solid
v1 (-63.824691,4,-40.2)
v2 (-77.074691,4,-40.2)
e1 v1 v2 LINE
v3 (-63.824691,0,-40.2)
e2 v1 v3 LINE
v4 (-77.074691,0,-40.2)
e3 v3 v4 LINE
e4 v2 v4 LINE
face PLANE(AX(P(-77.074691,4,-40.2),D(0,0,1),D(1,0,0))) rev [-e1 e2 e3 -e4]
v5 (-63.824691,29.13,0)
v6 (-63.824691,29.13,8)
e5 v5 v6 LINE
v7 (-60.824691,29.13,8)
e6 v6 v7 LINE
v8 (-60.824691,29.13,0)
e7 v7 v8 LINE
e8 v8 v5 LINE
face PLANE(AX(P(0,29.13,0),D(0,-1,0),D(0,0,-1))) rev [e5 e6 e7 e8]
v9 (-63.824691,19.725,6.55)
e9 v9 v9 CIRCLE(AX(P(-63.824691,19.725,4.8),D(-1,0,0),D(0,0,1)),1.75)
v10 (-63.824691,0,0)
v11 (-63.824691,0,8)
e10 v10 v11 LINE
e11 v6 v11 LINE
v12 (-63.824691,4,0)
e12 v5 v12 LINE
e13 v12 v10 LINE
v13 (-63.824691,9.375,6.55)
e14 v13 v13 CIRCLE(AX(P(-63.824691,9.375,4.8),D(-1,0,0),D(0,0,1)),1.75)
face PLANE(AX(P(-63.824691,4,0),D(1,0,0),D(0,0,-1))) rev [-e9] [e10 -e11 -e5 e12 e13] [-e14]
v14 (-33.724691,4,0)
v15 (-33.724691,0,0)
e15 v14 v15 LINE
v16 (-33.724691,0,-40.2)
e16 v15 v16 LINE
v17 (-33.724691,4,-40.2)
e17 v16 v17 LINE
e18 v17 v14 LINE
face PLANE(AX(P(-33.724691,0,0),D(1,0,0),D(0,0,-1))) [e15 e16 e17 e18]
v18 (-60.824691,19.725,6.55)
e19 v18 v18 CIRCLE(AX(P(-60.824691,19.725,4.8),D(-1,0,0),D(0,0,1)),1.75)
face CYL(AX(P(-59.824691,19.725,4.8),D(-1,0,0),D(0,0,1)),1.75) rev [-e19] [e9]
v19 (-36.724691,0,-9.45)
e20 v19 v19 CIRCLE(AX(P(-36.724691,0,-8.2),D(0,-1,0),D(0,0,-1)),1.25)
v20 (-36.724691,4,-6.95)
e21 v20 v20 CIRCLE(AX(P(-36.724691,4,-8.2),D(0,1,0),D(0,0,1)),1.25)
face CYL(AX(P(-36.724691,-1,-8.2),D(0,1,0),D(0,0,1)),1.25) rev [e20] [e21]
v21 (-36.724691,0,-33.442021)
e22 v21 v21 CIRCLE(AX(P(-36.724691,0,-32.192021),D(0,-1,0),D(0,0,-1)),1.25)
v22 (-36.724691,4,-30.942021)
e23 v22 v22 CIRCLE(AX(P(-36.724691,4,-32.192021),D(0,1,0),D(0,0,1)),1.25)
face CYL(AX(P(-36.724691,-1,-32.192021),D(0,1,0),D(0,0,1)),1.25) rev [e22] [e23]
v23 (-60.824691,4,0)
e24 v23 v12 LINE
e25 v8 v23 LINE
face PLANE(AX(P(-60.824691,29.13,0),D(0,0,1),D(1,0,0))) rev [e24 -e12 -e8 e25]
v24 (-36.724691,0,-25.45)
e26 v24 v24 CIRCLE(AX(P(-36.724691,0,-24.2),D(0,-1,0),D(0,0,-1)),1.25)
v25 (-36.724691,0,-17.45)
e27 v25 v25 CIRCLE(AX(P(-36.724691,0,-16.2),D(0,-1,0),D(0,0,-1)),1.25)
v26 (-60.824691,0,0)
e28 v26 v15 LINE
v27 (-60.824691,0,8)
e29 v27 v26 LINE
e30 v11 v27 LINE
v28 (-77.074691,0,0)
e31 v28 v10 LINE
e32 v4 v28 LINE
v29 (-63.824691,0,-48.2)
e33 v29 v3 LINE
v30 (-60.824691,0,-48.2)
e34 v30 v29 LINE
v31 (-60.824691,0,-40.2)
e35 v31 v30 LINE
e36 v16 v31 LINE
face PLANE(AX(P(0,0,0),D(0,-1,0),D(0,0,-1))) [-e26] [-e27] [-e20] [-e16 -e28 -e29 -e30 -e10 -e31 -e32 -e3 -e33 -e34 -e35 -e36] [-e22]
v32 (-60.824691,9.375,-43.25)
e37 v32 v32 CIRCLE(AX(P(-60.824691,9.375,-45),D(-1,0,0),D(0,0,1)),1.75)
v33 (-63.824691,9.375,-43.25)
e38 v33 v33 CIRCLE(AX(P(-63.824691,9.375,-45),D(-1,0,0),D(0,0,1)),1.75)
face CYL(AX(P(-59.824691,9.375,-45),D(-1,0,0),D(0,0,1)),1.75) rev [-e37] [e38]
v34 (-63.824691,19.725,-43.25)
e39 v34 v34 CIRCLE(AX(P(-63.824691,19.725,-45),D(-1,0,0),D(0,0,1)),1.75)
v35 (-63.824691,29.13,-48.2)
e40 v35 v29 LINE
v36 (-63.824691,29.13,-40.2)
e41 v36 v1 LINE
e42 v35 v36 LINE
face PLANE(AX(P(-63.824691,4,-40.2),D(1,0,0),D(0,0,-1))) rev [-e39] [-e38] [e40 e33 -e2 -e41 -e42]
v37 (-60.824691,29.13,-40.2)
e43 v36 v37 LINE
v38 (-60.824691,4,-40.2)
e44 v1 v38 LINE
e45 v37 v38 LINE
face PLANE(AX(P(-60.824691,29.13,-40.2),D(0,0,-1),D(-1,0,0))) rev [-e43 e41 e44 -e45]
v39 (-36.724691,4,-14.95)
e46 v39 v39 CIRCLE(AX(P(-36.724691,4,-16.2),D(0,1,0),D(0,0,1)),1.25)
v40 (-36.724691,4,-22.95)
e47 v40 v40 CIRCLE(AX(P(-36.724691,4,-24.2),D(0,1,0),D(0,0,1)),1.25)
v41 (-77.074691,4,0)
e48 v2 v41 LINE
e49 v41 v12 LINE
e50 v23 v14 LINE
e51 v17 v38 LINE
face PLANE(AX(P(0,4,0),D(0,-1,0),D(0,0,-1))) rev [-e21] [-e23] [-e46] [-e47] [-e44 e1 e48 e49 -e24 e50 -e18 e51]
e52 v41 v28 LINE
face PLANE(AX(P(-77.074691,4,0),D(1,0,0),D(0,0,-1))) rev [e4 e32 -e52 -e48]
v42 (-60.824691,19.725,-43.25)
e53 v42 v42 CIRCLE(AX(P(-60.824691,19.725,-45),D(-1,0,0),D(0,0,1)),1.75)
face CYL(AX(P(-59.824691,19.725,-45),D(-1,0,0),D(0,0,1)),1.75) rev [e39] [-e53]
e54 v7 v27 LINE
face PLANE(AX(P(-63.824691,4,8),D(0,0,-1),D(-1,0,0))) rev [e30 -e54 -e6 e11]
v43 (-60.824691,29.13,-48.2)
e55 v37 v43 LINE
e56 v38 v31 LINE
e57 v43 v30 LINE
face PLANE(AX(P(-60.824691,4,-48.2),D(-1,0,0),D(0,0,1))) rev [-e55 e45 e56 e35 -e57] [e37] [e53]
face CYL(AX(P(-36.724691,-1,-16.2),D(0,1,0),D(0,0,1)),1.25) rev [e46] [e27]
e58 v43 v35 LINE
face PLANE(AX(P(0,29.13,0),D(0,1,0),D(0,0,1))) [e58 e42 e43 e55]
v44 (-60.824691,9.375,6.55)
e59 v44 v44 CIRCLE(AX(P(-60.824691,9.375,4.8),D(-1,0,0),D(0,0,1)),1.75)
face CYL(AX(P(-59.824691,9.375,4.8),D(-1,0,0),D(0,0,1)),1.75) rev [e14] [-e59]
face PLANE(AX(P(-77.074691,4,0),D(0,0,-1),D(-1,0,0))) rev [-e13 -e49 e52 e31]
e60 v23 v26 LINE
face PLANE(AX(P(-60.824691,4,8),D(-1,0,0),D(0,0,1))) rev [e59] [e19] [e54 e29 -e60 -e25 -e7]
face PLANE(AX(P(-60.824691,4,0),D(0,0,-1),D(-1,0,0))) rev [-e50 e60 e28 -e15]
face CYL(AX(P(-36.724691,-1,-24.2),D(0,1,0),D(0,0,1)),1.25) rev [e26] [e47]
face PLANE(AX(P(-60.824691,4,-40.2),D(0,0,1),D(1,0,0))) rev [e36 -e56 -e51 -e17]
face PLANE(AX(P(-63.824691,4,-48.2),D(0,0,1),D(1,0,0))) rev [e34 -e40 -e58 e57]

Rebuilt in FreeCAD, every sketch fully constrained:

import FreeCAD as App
import Part
import Sketcher

V = App.Vector


def add_polygon(sketch, points):
    """Adds a closed chain of lines whose ends are joined by coincident constraints."""
    first, n = sketch.GeometryCount, len(points)
    for a, b in zip(points, points[1:] + points[:1]):
        sketch.addGeometry(Part.LineSegment(App.Vector(*a, 0), App.Vector(*b, 0)), False)
    for i in range(n):
        sketch.addConstraint(Sketcher.Constraint("Coincident", first + i, 2, first + (i + 1) % n, 1))

doc = App.newDocument("Part")
body = doc.addObject("PartDesign::Body", "Body")

# Sketch on XZ plane
sketch1 = body.newObject("Sketcher::SketchObject", "Sketch")
sketch1.AttachmentSupport = (doc.getObject("XZ_Plane"), [""])
sketch1.MapMode = "FlatFace"
add_polygon(sketch1, [(-77.1, 0), (-63.8, 0), (-63.8, 8), (-60.8, 8), (-60.8, 0), (-34.4, 0), (-34.4, -40.2), (-60.8, -40.2), (-60.8, -48.2), (-63.8, -48.2), (-63.8, -40.2), (-77.1, -40.2)])  # lines 0-11
sketch1.addConstraint([
    Sketcher.Constraint("Horizontal", 0),
    Sketcher.Constraint("Vertical", 1),
    Sketcher.Constraint("Horizontal", 2),
    Sketcher.Constraint("Vertical", 3),
    Sketcher.Constraint("Horizontal", 4),
    Sketcher.Constraint("Vertical", 5),
    Sketcher.Constraint("Horizontal", 6),
    Sketcher.Constraint("Vertical", 7),
    Sketcher.Constraint("Horizontal", 8),
    Sketcher.Constraint("Vertical", 9),
    Sketcher.Constraint("Horizontal", 10),
    Sketcher.Constraint("Vertical", 11),
    Sketcher.Constraint("PointOnObject", 0, 2, -1),
    Sketcher.Constraint("PointOnObject", 3, 2, -1),
    Sketcher.Constraint("Horizontal", 6, 2, 9, 2),
    Sketcher.Constraint("Vertical", 3, 2, 6, 2),
    Sketcher.Constraint("Vertical", 1, 2, 8, 2),
    Sketcher.Constraint("Equal", 3, 7),
    Sketcher.Constraint("DistanceX", 2, 1, 2, 2, 3.0),
    Sketcher.Constraint("DistanceY", 1, 1, 1, 2, 8.0),
    Sketcher.Constraint("DistanceY", 5, 2, 5, 1, 40.2),
    Sketcher.Constraint("DistanceX", 0, 1, 0, 2, 13.25),
    Sketcher.Constraint("DistanceX", 4, 1, 4, 2, 26.45),
    Sketcher.Constraint("DistanceX", 0, 2, -1, 1, 63.824691),
])
pad1 = body.newObject("PartDesign::Pad", "Pad")
pad1.Profile = sketch1
pad1.Length = 4
pad1.Reversed = True

# Sketch on XZ plane
sketch2 = body.newObject("Sketcher::SketchObject", "Sketch001")
sketch2.AttachmentSupport = (doc.getObject("XZ_Plane"), [""])
sketch2.MapMode = "FlatFace"
sketch2.AttachmentOffset = App.Placement(V(0, 0, -4), App.Rotation())
add_polygon(sketch2, [(-63.8, 0), (-63.8, 8), (-60.8, 8), (-60.8, 0)])  # lines 0-3
add_polygon(sketch2, [(-63.8, -48.2), (-63.8, -40.2), (-60.8, -40.2), (-60.8, -48.2)])  # lines 4-7
sketch2.addConstraint([
    Sketcher.Constraint("Vertical", 0),
    Sketcher.Constraint("Horizontal", 1),
    Sketcher.Constraint("Vertical", 2),
    Sketcher.Constraint("Horizontal", 3),
    Sketcher.Constraint("Vertical", 4),
    Sketcher.Constraint("Horizontal", 5),
    Sketcher.Constraint("Vertical", 6),
    Sketcher.Constraint("Horizontal", 7),
    Sketcher.Constraint("PointOnObject", 2, 2, -1),
    Sketcher.Constraint("Vertical", 3, 2, 4, 2),
    Sketcher.Constraint("Vertical", 2, 2, 5, 2),
    Sketcher.Constraint("Equal", 2, 4),
    Sketcher.Constraint("DistanceX", 1, 1, 1, 2, 3.0),
    Sketcher.Constraint("DistanceY", 0, 1, 0, 2, 8.0),
    Sketcher.Constraint("DistanceY", 4, 2, -1, 1, 40.2),
    Sketcher.Constraint("DistanceX", 0, 2, -1, 1, 63.824691),
])
pad2 = body.newObject("PartDesign::Pad", "Pad001")
pad2.Profile = sketch2
pad2.Length = 25.13
pad2.Reversed = True

# Sketch on YZ plane
sketch3 = body.newObject("Sketcher::SketchObject", "Sketch002")
sketch3.AttachmentSupport = (doc.getObject("YZ_Plane"), [""])
sketch3.MapMode = "FlatFace"
sketch3.AttachmentOffset = App.Placement(V(0, 0, -63.824691), App.Rotation())
sketch3.addGeometry([
    Part.Circle(V(9.4, 4.8, 0), V(0, 0, 1), 1.8),
    Part.Circle(V(9.4, -45, 0), V(0, 0, 1), 1.8),
    Part.Circle(V(19.7, -45, 0), V(0, 0, 1), 1.8),
    Part.Circle(V(19.7, 4.8, 0), V(0, 0, 1), 1.8),
], False)
sketch3.addConstraint([
    Sketcher.Constraint("Equal", 0, 1),
    Sketcher.Constraint("Equal", 1, 2),
    Sketcher.Constraint("Equal", 2, 3),
    Sketcher.Constraint("Horizontal", 1, 3, 2, 3),
    Sketcher.Constraint("Horizontal", 0, 3, 3, 3),
    Sketcher.Constraint("Vertical", 0, 3, 1, 3),
    Sketcher.Constraint("Vertical", 2, 3, 3, 3),
    Sketcher.Constraint("Diameter", 0, 3.5),
    Sketcher.Constraint("DistanceY", 1, 3, -1, 1, 45.0),
    Sketcher.Constraint("DistanceY", -1, 1, 0, 3, 4.8),
    Sketcher.Constraint("DistanceX", 1, 3, 2, 3, 10.35),
    Sketcher.Constraint("DistanceX", -1, 1, 0, 3, 9.375),
])
pocket1 = body.newObject("PartDesign::Pocket", "Pocket")
pocket1.Profile = sketch3
pocket1.Length = 4
pocket1.Reversed = True

# Sketch on YZ plane
sketch4 = body.newObject("Sketcher::SketchObject", "Sketch003")
sketch4.AttachmentSupport = (doc.getObject("YZ_Plane"), [""])
sketch4.MapMode = "FlatFace"
sketch4.AttachmentOffset = App.Placement(V(0, 0, -34.374691), App.Rotation())
add_polygon(sketch4, [(4, 0), (0, 0), (0, -40.2), (4, -40.2)])  # lines 0-3
sketch4.addConstraint([
    Sketcher.Constraint("Horizontal", 0),
    Sketcher.Constraint("Vertical", 1),
    Sketcher.Constraint("Horizontal", 2),
    Sketcher.Constraint("Vertical", 3),
    Sketcher.Constraint("Coincident", 0, 2, -1, 1),
    Sketcher.Constraint("DistanceX", 0, 2, 0, 1, 4.0),
    Sketcher.Constraint("DistanceY", 1, 2, 1, 1, 40.2),
])
pad3 = body.newObject("PartDesign::Pad", "Pad002")
pad3.Profile = sketch4
pad3.Length = 0.65

# Sketch on XZ plane
sketch5 = body.newObject("Sketcher::SketchObject", "Sketch004")
sketch5.AttachmentSupport = (doc.getObject("XZ_Plane"), [""])
sketch5.MapMode = "FlatFace"
sketch5.AttachmentOffset = App.Placement(V(0, 0, -4), App.Rotation())
sketch5.addGeometry([
    Part.Circle(V(-36.7, -32.2, 0), V(0, 0, 1), 1.2),
    Part.Circle(V(-36.7, -24.2, 0), V(0, 0, 1), 1.2),
    Part.Circle(V(-36.7, -16.2, 0), V(0, 0, 1), 1.2),
    Part.Circle(V(-36.7, -8.2, 0), V(0, 0, 1), 1.2),
], False)
sketch5.addConstraint([
    Sketcher.Constraint("Equal", 0, 1),
    Sketcher.Constraint("Equal", 1, 2),
    Sketcher.Constraint("Equal", 2, 3),
    Sketcher.Constraint("Vertical", 0, 3, 1, 3),
    Sketcher.Constraint("Vertical", 1, 3, 2, 3),
    Sketcher.Constraint("Vertical", 2, 3, 3, 3),
    Sketcher.Constraint("Diameter", 0, 2.5),
    Sketcher.Constraint("DistanceY", 1, 3, 2, 3, 8.0),
    Sketcher.Constraint("DistanceY", 2, 3, 3, 3, 8.0),
    Sketcher.Constraint("DistanceY", 1, 3, -1, 1, 24.2),
    Sketcher.Constraint("DistanceX", 0, 3, -1, 1, 36.724691),
    Sketcher.Constraint("DistanceY", 0, 3, -1, 1, 32.192021),
])
pocket2 = body.newObject("PartDesign::Pocket", "Pocket001")
pocket2.Profile = sketch5
pocket2.Length = 5
pocket2.Reversed = True

doc.recompute()
